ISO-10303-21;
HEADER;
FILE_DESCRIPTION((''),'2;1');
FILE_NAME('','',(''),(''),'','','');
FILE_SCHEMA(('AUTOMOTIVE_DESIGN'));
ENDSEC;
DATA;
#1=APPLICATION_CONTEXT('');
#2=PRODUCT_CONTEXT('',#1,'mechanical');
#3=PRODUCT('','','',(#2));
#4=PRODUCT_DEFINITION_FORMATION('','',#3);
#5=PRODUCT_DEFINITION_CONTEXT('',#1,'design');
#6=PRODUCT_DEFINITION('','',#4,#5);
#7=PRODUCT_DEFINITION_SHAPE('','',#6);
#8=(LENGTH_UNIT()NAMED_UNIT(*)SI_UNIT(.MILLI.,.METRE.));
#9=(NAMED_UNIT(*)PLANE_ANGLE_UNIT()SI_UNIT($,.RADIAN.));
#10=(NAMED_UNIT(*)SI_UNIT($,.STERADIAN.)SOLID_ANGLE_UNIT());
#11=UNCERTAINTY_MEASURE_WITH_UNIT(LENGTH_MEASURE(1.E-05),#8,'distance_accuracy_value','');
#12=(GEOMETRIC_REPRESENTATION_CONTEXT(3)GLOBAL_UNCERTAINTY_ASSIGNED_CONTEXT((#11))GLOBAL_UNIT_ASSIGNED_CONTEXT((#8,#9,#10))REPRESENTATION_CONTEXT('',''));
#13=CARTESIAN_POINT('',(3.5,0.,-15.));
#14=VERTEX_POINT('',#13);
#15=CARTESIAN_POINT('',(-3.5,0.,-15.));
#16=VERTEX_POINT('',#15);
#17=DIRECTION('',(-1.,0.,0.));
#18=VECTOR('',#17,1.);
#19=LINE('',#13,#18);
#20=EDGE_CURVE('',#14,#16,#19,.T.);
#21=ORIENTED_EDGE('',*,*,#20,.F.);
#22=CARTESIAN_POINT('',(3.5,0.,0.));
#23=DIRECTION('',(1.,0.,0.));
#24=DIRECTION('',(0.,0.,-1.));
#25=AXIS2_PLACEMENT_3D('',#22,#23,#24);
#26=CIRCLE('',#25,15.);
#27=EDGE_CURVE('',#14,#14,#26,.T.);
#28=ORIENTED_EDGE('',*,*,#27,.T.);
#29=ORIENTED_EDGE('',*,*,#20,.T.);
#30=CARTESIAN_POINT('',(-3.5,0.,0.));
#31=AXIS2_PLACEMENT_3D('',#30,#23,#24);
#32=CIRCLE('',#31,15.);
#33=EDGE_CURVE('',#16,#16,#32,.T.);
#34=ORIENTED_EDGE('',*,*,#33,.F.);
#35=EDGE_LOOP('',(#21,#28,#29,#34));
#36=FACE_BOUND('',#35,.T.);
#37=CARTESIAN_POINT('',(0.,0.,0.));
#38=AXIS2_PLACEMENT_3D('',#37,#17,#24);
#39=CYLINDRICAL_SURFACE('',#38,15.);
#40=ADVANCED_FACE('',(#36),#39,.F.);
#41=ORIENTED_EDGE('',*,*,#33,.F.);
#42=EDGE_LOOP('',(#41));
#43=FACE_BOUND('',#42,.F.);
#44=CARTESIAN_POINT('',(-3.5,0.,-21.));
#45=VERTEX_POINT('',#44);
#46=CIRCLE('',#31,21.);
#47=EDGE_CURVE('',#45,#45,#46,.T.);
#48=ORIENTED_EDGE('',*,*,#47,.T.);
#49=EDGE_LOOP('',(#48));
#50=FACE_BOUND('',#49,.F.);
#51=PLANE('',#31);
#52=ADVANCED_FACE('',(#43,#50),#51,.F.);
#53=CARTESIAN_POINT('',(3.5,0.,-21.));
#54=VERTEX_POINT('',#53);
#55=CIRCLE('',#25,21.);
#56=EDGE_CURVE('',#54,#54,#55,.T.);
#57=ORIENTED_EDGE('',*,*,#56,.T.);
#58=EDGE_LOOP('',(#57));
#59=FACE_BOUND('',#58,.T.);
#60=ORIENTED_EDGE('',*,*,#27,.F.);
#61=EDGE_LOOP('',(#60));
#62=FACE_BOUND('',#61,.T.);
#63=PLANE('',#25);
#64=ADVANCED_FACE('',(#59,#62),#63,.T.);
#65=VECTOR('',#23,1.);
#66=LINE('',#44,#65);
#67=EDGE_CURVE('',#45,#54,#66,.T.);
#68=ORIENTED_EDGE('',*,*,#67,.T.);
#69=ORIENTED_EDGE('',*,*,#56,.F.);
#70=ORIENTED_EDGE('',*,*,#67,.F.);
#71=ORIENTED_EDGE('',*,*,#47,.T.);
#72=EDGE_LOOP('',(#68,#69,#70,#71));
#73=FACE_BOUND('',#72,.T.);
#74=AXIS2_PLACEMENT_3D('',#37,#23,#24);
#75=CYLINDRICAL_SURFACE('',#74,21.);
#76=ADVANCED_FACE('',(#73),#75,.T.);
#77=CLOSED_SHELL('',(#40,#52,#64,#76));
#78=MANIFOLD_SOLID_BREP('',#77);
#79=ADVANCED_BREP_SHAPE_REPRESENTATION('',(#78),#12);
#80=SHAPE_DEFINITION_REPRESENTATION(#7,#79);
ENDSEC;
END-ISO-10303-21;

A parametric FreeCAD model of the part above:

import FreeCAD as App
import Part
import Sketcher

doc = App.newDocument("Part")
body = doc.addObject("PartDesign::Body", "Body")

# Sketch on YZ plane
sketch1 = body.newObject("Sketcher::SketchObject", "Sketch")
sketch1.AttachmentSupport = (doc.getObject("YZ_Plane"), [""])
sketch1.MapMode = "FlatFace"
sketch1.addGeometry([
    Part.Circle(App.Vector(0, 0, 0), App.Vector(0, 0, 1), 21),
    Part.Circle(App.Vector(0, 0, 0), App.Vector(0, 0, 1), 15),
], False)
sketch1.addConstraint([
    Sketcher.Constraint("Coincident", 0, 3, -1, 1),
    Sketcher.Constraint("Coincident", 1, 3, -1, 1),
    Sketcher.Constraint("Diameter", 0, 42.0),
    Sketcher.Constraint("Diameter", 1, 30.0),
])
pad1 = body.newObject("PartDesign::Pad", "Pad")
pad1.Profile = sketch1
pad1.Length = 7
pad1.Midplane = True

doc.recompute()
